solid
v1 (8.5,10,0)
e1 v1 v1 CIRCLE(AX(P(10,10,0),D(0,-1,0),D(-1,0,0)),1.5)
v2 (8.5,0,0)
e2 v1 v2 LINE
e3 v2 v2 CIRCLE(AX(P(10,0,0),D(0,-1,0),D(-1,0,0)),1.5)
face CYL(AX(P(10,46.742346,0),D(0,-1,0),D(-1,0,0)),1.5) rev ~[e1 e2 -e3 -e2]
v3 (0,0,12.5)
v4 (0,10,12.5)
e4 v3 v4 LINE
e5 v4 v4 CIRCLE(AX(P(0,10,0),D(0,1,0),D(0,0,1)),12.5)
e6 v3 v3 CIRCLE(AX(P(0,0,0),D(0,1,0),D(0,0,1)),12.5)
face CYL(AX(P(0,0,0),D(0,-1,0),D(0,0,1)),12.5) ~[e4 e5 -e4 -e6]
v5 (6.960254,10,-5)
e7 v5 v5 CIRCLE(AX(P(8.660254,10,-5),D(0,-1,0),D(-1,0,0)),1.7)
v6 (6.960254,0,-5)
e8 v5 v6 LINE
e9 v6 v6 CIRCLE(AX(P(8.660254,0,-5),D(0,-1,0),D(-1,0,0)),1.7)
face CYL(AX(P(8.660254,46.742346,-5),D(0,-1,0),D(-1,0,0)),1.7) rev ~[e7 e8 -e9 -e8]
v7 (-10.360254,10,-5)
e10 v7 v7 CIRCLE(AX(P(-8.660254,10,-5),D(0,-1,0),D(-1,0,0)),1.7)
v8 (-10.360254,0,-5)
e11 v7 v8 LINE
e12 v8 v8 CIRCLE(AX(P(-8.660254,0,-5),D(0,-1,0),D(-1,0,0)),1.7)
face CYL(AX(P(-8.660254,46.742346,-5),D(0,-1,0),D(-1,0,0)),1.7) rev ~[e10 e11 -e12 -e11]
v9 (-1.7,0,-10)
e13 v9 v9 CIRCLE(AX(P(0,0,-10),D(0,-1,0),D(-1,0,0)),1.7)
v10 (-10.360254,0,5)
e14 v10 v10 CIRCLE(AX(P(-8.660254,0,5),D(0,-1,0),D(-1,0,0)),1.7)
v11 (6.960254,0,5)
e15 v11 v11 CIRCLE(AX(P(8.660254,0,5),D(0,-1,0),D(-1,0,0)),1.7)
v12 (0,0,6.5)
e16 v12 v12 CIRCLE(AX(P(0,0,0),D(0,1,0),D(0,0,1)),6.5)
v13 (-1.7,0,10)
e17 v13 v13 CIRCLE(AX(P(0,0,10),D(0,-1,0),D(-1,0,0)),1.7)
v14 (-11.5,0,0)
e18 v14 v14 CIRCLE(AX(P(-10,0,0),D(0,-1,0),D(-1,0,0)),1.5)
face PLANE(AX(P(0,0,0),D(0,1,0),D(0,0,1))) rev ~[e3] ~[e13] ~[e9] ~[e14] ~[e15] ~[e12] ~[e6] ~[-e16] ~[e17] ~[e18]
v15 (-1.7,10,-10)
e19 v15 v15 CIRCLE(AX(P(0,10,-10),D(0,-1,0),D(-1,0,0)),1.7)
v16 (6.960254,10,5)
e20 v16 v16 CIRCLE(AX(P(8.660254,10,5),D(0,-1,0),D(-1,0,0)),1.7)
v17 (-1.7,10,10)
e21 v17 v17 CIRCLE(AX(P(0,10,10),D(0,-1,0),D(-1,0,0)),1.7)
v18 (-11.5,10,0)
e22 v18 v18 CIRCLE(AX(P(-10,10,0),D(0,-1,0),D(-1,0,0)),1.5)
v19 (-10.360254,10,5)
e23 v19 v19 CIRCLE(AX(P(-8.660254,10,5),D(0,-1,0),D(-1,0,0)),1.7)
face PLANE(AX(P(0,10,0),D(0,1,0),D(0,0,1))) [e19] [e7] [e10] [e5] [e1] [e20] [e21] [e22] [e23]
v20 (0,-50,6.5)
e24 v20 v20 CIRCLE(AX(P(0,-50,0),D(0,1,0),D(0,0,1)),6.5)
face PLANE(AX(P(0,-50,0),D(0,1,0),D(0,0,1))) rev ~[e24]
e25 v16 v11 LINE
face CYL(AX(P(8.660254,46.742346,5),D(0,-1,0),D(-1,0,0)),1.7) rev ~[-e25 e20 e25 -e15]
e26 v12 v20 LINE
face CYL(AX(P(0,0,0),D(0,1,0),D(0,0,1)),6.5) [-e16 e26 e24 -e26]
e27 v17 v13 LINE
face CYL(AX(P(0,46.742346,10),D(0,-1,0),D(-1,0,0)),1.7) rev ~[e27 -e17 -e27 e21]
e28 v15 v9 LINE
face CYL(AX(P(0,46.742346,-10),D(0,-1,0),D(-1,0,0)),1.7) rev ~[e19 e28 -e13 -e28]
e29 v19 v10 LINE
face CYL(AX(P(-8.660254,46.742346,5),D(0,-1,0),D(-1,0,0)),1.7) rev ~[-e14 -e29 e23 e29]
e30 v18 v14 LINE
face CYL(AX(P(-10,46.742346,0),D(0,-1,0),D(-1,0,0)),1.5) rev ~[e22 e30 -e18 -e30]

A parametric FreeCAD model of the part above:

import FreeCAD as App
import Part
import Sketcher
from FreeCAD import Vector
Q = App.Units.Quantity

doc = App.newDocument("Part")
params = doc.addObject("Spreadsheet::Sheet", "Params")
for row, (alias, value) in enumerate([
    ("sketch1_diameter", "25 mm"),
    ("pad1_length", "10 mm"),
    ("sketch2_diameter", "3.4 mm"),
    ("hole_diameter", "3.4 mm"),
    ("sketch3_diameter", "3 mm"),
    ("hole2_diameter", "3 mm"),
    ("sketch4_diameter", "13 mm"),
    ("pad2_length", "50 mm"),
], start=1):
    params.set(f"A{row}", alias)
    params.set(f"B{row}", "=" + value)
    params.setAlias(f"B{row}", alias)

body = doc.addObject("PartDesign::Body", "Body")

sketch1 = doc.addObject("Sketcher::SketchObject", "Sketch")
body.addObject(sketch1)
sketch1.AttachmentSupport = (doc.XZ_Plane, [""])
sketch1.MapMode = "FlatFace"
sketch1.addGeometry(Part.Circle(Vector(0, 0, 0), Vector(0, 0, 1), 12), False)
sketch1.addConstraint([
    Sketcher.Constraint("Coincident", 0, 3, -1, 1),
    Sketcher.Constraint("Diameter", 0, Q("25 mm")),
])
sketch1.setExpression("Constraints[1]", "Params.sketch1_diameter")
pad1 = doc.addObject("PartDesign::Pad", "Pad")
body.addObject(pad1)
pad1.Profile = sketch1
pad1.setExpression("Length", "Params.pad1_length")
pad1.Reversed = True

sketch2 = doc.addObject("Sketcher::SketchObject", "Sketch001")
body.addObject(sketch2)
sketch2.AttachmentSupport = (doc.XZ_Plane, [""])
sketch2.MapMode = "FlatFace"
sketch2.AttachmentOffset = App.Placement(Vector(0, 0, -10), App.Rotation())
sketch2.addGeometry([
    Part.Circle(Vector(-8.7, -5, 0), Vector(0, 0, 1), 1.7),
    Part.Circle(Vector(0, -10, 0), Vector(0, 0, 1), 1.7),
    Part.Circle(Vector(8.7, -5, 0), Vector(0, 0, 1), 1.7),
    Part.Circle(Vector(8.7, 5, 0), Vector(0, 0, 1), 1.7),
    Part.Circle(Vector(0, 10, 0), Vector(0, 0, 1), 1.7),
    Part.Circle(Vector(-8.7, 5, 0), Vector(0, 0, 1), 1.7),
], False)
sketch2.addConstraint([
    Sketcher.Constraint("Equal", 0, 1),
    Sketcher.Constraint("Equal", 1, 2),
    Sketcher.Constraint("Equal", 2, 3),
    Sketcher.Constraint("Equal", 3, 4),
    Sketcher.Constraint("Equal", 4, 5),
    Sketcher.Constraint("Symmetric", 0, 3, 3, 3, -1, 1),
    Sketcher.Constraint("Symmetric", 1, 3, 4, 3, -1, 1),
    Sketcher.Constraint("Symmetric", 2, 3, 5, 3, -1, 1),
    Sketcher.Constraint("Symmetric", 0, 3, 2, 3, -2),
    Sketcher.Constraint("PointOnObject", 1, 3, -2),
    Sketcher.Constraint("Diameter", 0, Q("3.4 mm")),
    Sketcher.Constraint("DistanceY", 0, 3, -1, 1, Q("5 mm")),
    Sketcher.Constraint("DistanceY", 1, 3, -1, 1, Q("10 mm")),
    Sketcher.Constraint("DistanceX", 0, 3, 2, 3, Q("17.320508 mm")),
])
sketch2.setExpression("Constraints[10]", "Params.sketch2_diameter")
doc.recompute()
hole = doc.addObject("PartDesign::Hole", "Hole")
body.addObject(hole)
hole.Profile = sketch2
hole.ThreadType = "None"
hole.setExpression("Diameter", "Params.hole_diameter")
hole.DepthType = "ThroughAll"
hole.Reversed = True

sketch3 = doc.addObject("Sketcher::SketchObject", "Sketch002")
body.addObject(sketch3)
sketch3.AttachmentSupport = (doc.XZ_Plane, [""])
sketch3.MapMode = "FlatFace"
sketch3.AttachmentOffset = App.Placement(Vector(0, 0, -10), App.Rotation())
sketch3.addGeometry([
    Part.Circle(Vector(-10, 0, 0), Vector(0, 0, 1), 1.5),
    Part.Circle(Vector(10, 0, 0), Vector(0, 0, 1), 1.5),
], False)
sketch3.addConstraint([
    Sketcher.Constraint("Equal", 0, 1),
    Sketcher.Constraint("Symmetric", 0, 3, 1, 3, -1, 1),
    Sketcher.Constraint("PointOnObject", 0, 3, -1),
    Sketcher.Constraint("Diameter", 0, Q("3 mm")),
    Sketcher.Constraint("DistanceX", 0, 3, -1, 1, Q("10 mm")),
])
sketch3.setExpression("Constraints[3]", "Params.sketch3_diameter")
doc.recompute()
hole2 = doc.addObject("PartDesign::Hole", "Hole001")
body.addObject(hole2)
hole2.Profile = sketch3
hole2.ThreadType = "None"
hole2.setExpression("Diameter", "Params.hole2_diameter")
hole2.DepthType = "ThroughAll"
hole2.Reversed = True

sketch4 = doc.addObject("Sketcher::SketchObject", "Sketch003")
body.addObject(sketch4)
sketch4.AttachmentSupport = (doc.XZ_Plane, [""])
sketch4.MapMode = "FlatFace"
sketch4.addGeometry(Part.Circle(Vector(0, 0, 0), Vector(0, 0, 1), 6), False)
sketch4.addConstraint([
    Sketcher.Constraint("Coincident", 0, 3, -1, 1),
    Sketcher.Constraint("Diameter", 0, Q("13 mm")),
])
sketch4.setExpression("Constraints[1]", "Params.sketch4_diameter")
pad2 = doc.addObject("PartDesign::Pad", "Pad001")
body.addObject(pad2)
pad2.Profile = sketch4
pad2.setExpression("Length", "Params.pad2_length")

doc.recompute()
